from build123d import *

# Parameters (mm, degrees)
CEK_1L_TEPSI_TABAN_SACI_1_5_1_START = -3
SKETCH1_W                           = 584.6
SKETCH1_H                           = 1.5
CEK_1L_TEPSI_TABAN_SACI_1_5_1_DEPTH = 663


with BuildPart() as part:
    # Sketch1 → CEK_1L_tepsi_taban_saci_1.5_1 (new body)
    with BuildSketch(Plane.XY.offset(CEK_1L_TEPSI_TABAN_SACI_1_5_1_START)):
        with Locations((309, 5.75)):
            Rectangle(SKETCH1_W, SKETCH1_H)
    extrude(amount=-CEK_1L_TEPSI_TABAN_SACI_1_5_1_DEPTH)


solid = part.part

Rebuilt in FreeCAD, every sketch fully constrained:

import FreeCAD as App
import Part
import Sketcher
from FreeCAD import Vector
Q = App.Units.Quantity

doc = App.newDocument("Part")
body = doc.addObject("PartDesign::Body", "Body")

sketch1 = body.newObject("Sketcher::SketchObject", "Sketch")
sketch1.AttachmentSupport = (doc.getObject("XY_Plane"), [""])
sketch1.MapMode = "FlatFace"
sketch1.AttachmentOffset = App.Placement(Vector(0, 0, -3), App.Rotation())
sketch1.addGeometry([
    Part.LineSegment(Vector(16.7, 6.5, 0), Vector(16.7, 5, 0)),
    Part.LineSegment(Vector(16.7, 5, 0), Vector(601.3, 5, 0)),
    Part.LineSegment(Vector(601.3, 5, 0), Vector(601.3, 6.5, 0)),
    Part.LineSegment(Vector(601.3, 6.5, 0), Vector(16.7, 6.5, 0)),
], False)
sketch1.addConstraint([
    Sketcher.Constraint("Coincident", 0, 2, 1, 1),
    Sketcher.Constraint("Coincident", 1, 2, 2, 1),
    Sketcher.Constraint("Coincident", 2, 2, 3, 1),
    Sketcher.Constraint("Coincident", 3, 2, 0, 1),
    Sketcher.Constraint("Vertical", 0),
    Sketcher.Constraint("Horizontal", 1),
    Sketcher.Constraint("Vertical", 2),
    Sketcher.Constraint("Horizontal", 3),
    Sketcher.Constraint("DistanceX", 1, 1, 1, 2, Q("584.6 mm")),
    Sketcher.Constraint("DistanceY", 0, 2, 0, 1, Q("1.5 mm")),
    Sketcher.Constraint("DistanceY", -1, 1, 0, 2, Q("5 mm")),
    Sketcher.Constraint("DistanceX", -1, 1, 0, 2, Q("16.7 mm")),
])
pad1 = body.newObject("PartDesign::Pad", "Pad")
pad1.Profile = sketch1
pad1.Length = 663
pad1.Reversed = True

doc.recompute()
